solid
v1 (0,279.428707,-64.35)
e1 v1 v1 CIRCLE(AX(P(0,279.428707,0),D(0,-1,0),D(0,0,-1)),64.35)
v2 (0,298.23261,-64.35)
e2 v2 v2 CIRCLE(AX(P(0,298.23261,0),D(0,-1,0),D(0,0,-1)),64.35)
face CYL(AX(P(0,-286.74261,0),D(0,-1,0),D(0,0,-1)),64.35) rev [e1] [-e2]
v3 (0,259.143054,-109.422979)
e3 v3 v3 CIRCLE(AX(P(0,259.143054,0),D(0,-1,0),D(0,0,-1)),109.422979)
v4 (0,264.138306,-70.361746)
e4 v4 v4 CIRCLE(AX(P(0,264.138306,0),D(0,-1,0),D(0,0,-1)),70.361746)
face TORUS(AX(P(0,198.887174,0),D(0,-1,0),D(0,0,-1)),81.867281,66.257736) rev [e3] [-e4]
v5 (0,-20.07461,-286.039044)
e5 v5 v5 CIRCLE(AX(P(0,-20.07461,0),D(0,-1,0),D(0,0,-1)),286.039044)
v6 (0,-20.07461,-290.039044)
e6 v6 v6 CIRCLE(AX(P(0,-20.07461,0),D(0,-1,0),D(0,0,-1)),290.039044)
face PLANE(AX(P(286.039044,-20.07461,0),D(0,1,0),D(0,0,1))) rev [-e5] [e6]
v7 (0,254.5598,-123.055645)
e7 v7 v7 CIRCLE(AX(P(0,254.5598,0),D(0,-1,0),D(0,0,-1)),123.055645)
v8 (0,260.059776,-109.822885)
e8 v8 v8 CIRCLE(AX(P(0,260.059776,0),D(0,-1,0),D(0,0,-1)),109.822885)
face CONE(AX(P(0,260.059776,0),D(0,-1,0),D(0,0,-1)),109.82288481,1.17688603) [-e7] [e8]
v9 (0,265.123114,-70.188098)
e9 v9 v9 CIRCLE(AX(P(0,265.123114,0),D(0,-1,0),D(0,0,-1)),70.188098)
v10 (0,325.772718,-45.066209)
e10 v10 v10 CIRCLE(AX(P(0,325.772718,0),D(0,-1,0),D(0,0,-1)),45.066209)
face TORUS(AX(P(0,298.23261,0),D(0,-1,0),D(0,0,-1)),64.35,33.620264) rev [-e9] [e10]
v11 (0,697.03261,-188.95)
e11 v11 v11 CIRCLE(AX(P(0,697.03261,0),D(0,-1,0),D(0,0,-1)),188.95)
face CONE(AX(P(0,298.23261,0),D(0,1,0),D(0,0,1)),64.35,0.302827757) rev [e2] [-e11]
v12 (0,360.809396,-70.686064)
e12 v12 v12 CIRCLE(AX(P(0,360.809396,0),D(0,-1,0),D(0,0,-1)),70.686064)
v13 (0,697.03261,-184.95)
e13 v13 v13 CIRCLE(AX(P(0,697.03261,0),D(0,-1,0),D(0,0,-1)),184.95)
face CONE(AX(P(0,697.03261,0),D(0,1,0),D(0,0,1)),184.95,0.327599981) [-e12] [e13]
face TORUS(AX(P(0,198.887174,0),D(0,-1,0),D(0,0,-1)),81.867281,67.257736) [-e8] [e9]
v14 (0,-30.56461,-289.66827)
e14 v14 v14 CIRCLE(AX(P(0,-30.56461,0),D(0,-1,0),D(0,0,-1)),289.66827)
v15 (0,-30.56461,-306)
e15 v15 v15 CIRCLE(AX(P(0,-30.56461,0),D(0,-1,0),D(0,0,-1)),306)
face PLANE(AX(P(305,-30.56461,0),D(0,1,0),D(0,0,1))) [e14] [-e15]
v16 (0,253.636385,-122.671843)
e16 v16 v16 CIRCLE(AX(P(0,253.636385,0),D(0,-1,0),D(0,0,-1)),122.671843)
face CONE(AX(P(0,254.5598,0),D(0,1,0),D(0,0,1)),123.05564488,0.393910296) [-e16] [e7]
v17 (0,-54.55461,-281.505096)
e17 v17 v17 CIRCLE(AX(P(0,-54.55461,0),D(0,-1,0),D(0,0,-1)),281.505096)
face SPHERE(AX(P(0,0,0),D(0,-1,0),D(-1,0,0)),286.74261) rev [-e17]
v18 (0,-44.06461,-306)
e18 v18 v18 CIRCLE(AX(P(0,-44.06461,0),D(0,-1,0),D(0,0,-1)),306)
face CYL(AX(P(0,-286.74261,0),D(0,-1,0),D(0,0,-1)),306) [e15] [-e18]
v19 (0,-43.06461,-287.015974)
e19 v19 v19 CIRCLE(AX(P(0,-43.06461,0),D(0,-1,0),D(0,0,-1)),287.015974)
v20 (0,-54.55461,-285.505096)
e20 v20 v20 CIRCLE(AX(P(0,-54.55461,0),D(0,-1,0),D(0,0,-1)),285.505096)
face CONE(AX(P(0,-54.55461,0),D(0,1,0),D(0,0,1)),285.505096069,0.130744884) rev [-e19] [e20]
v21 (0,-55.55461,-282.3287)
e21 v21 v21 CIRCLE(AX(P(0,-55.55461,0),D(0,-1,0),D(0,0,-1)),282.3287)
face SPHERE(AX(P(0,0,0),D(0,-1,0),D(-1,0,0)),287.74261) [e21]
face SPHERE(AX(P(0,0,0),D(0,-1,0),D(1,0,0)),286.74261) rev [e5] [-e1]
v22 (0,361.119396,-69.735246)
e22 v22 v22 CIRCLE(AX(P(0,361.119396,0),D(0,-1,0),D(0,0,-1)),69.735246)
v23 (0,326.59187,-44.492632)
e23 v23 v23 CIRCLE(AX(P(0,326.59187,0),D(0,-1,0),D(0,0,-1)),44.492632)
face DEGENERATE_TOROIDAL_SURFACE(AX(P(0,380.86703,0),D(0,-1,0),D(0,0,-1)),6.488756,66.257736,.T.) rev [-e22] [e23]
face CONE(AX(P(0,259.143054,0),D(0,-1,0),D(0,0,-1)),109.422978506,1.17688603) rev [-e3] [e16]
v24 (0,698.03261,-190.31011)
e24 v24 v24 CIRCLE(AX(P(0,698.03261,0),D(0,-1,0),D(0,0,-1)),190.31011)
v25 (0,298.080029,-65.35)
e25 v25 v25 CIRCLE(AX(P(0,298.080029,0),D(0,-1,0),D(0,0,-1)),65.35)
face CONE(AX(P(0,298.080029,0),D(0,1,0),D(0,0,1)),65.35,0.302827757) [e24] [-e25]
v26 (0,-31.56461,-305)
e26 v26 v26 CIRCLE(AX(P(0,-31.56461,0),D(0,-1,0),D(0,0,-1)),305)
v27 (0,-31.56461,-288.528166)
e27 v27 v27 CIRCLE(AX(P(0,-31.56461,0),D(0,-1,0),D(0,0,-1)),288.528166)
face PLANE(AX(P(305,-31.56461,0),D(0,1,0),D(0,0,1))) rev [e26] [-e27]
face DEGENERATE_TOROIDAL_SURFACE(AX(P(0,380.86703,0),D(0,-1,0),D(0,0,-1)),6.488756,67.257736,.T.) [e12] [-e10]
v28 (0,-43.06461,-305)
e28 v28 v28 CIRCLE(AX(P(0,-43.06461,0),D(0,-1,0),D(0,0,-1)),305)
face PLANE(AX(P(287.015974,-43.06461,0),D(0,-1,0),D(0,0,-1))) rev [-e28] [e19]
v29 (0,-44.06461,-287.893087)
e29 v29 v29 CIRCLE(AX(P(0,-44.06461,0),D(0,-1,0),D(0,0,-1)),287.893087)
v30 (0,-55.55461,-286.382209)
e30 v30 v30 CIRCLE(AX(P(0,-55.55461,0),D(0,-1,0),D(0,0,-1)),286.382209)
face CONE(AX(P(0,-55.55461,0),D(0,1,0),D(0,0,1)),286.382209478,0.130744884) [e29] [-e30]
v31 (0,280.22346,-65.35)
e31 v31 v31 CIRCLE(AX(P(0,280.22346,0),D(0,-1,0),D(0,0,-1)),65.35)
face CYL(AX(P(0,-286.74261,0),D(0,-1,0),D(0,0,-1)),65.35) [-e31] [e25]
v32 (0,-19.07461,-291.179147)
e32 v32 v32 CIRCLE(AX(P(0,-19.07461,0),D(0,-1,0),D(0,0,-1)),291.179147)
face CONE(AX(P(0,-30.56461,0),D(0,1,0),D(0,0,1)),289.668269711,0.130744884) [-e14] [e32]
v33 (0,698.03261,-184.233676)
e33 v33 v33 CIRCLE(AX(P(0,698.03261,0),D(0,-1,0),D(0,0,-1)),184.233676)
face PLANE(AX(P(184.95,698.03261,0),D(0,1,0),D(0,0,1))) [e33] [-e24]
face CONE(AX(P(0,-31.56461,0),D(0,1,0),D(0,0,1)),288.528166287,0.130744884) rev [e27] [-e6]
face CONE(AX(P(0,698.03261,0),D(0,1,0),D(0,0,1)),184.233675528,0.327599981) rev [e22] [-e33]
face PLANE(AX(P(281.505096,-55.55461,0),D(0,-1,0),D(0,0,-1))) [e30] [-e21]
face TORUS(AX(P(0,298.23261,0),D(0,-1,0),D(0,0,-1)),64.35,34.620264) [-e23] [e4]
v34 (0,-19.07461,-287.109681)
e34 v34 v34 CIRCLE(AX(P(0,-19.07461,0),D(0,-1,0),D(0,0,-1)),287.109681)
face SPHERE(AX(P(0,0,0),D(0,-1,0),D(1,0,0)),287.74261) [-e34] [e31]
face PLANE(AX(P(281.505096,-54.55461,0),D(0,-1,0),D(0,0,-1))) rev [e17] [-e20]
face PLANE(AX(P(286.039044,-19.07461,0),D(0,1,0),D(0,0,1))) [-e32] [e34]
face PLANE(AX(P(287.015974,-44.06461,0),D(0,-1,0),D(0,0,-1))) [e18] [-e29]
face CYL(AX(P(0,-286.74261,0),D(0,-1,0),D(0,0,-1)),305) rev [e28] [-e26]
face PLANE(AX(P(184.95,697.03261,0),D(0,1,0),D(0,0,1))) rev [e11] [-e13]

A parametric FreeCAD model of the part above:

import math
import FreeCAD as App
import Part
import Sketcher

V = App.Vector
Q = App.Units.Quantity

doc = App.newDocument("Part")
body = doc.addObject("PartDesign::Body", "Body")

# Sketch on XY plane
sketch1 = doc.addObject("Sketcher::SketchObject", "Sketch")
body.addObject(sketch1)
sketch1.AttachmentSupport = (doc.XY_Plane, [""])
sketch1.MapMode = "FlatFace"
sketch1.addGeometry([
    Part.ArcOfCircle(Part.Circle(V(0, 0, 0), V(0, 0, 1), 286.7), math.radians(-90), math.radians(-11)),  # 0
    Part.LineSegment(V(0, -286.7, 0), V(0, -287.7, 0)),  # 1
    Part.ArcOfCircle(Part.Circle(V(0, 0, 0), V(0, 0, 1), 287.7), math.radians(-90), math.radians(-11)),  # 2
    Part.LineSegment(V(282.3, -55.6, 0), V(286.4, -55.6, 0)),  # 3
    Part.LineSegment(V(286.4, -55.6, 0), V(287.9, -44.1, 0)),  # 4
    Part.LineSegment(V(287.9, -44.1, 0), V(306, -44.1, 0)),  # 5
    Part.LineSegment(V(306, -44.1, 0), V(306, -30.6, 0)),  # 6
    Part.LineSegment(V(306, -30.6, 0), V(289.7, -30.6, 0)),  # 7
    Part.LineSegment(V(289.7, -30.6, 0), V(291.2, -19.1, 0)),  # 8
    Part.LineSegment(V(291.2, -19.1, 0), V(287.1, -19.1, 0)),  # 9
    Part.ArcOfCircle(Part.Circle(V(0, 0, 0), V(0, 0, 1), 287.7), math.radians(-4), math.radians(77)),  # 10
    Part.LineSegment(V(65.3, 280.2, 0), V(65.3, 298.1, 0)),  # 11
    Part.LineSegment(V(65.3, 298.1, 0), V(190.3, 698, 0)),  # 12
    Part.LineSegment(V(190.3, 698, 0), V(184.2, 698, 0)),  # 13
    Part.LineSegment(V(184.2, 698, 0), V(69.7, 361.1, 0)),  # 14
    Part.ArcOfCircle(Part.Circle(V(6.5, 380.9, 0), V(0, 0, 1), 66.3), math.radians(-55), math.radians(-17)),  # 15
    Part.ArcOfCircle(Part.Circle(V(64.3, 298.2, 0), V(0, 0, 1), 34.6), math.radians(125), math.radians(280)),  # 16
    Part.ArcOfCircle(Part.Circle(V(81.9, 198.9, 0), V(0, 0, 1), 66.3), math.radians(65), math.radians(100)),  # 17
    Part.LineSegment(V(109.4, 259.1, 0), V(122.7, 253.6, 0)),  # 18
    Part.LineSegment(V(122.7, 253.6, 0), V(123.1, 254.6, 0)),  # 19
    Part.LineSegment(V(123.1, 254.6, 0), V(109.8, 260.1, 0)),  # 20
    Part.ArcOfCircle(Part.Circle(V(81.9, 198.9, 0), V(0, 0, 1), 67.3), math.radians(65), math.radians(100)),  # 21
    Part.ArcOfCircle(Part.Circle(V(64.3, 298.2, 0), V(0, 0, 1), 33.6), math.radians(125), math.radians(280)),  # 22
    Part.ArcOfCircle(Part.Circle(V(6.5, 380.9, 0), V(0, 0, 1), 67.3), math.radians(-55), math.radians(-17)),  # 23
    Part.LineSegment(V(70.7, 360.8, 0), V(184.9, 697, 0)),  # 24
    Part.LineSegment(V(184.9, 697, 0), V(188.9, 697, 0)),  # 25
    Part.LineSegment(V(188.9, 697, 0), V(64.3, 298.2, 0)),  # 26
    Part.LineSegment(V(64.3, 298.2, 0), V(64.3, 279.4, 0)),  # 27
    Part.ArcOfCircle(Part.Circle(V(0, 0, 0), V(0, 0, 1), 286.7), math.radians(-4), math.radians(77)),  # 28
    Part.LineSegment(V(286, -20.1, 0), V(290, -20.1, 0)),  # 29
    Part.LineSegment(V(290, -20.1, 0), V(288.5, -31.6, 0)),  # 30
    Part.LineSegment(V(288.5, -31.6, 0), V(305, -31.6, 0)),  # 31
    Part.LineSegment(V(305, -31.6, 0), V(305, -43.1, 0)),  # 32
    Part.LineSegment(V(305, -43.1, 0), V(287, -43.1, 0)),  # 33
    Part.LineSegment(V(287, -43.1, 0), V(285.5, -54.6, 0)),  # 34
    Part.LineSegment(V(285.5, -54.6, 0), V(281.5, -54.6, 0)),  # 35
], False)
sketch1.addConstraint([
    Sketcher.Constraint("Coincident", 0, 1, 1, 1),
    Sketcher.Constraint("Coincident", 1, 2, 2, 1),
    Sketcher.Constraint("Coincident", 2, 2, 3, 1),
    Sketcher.Constraint("Coincident", 3, 2, 4, 1),
    Sketcher.Constraint("Coincident", 4, 2, 5, 1),
    Sketcher.Constraint("Coincident", 5, 2, 6, 1),
    Sketcher.Constraint("Coincident", 6, 2, 7, 1),
    Sketcher.Constraint("Coincident", 7, 2, 8, 1),
    Sketcher.Constraint("Coincident", 8, 2, 9, 1),
    Sketcher.Constraint("Coincident", 9, 2, 10, 1),
    Sketcher.Constraint("Coincident", 10, 2, 11, 1),
    Sketcher.Constraint("Coincident", 11, 2, 12, 1),
    Sketcher.Constraint("Coincident", 12, 2, 13, 1),
    Sketcher.Constraint("Coincident", 13, 2, 14, 1),
    Sketcher.Constraint("Coincident", 14, 2, 15, 2),
    Sketcher.Constraint("Tangent", 15, 1, 16, 1),
    Sketcher.Constraint("Tangent", 16, 2, 17, 2),
    Sketcher.Constraint("Coincident", 17, 1, 18, 1),
    Sketcher.Constraint("Coincident", 18, 2, 19, 1),
    Sketcher.Constraint("Coincident", 19, 2, 20, 1),
    Sketcher.Constraint("Coincident", 20, 2, 21, 1),
    Sketcher.Constraint("Tangent", 21, 2, 22, 2),
    Sketcher.Constraint("Tangent", 22, 1, 23, 1),
    Sketcher.Constraint("Coincident", 23, 2, 24, 1),
    Sketcher.Constraint("Coincident", 24, 2, 25, 1),
    Sketcher.Constraint("Coincident", 25, 2, 26, 1),
    Sketcher.Constraint("Coincident", 26, 2, 27, 1),
    Sketcher.Constraint("Coincident", 27, 2, 28, 2),
    Sketcher.Constraint("Coincident", 28, 1, 29, 1),
    Sketcher.Constraint("Coincident", 29, 2, 30, 1),
    Sketcher.Constraint("Coincident", 30, 2, 31, 1),
    Sketcher.Constraint("Coincident", 31, 2, 32, 1),
    Sketcher.Constraint("Coincident", 32, 2, 33, 1),
    Sketcher.Constraint("Coincident", 33, 2, 34, 1),
    Sketcher.Constraint("Coincident", 34, 2, 35, 1),
    Sketcher.Constraint("Coincident", 35, 2, 0, 2),
    Sketcher.Constraint("Vertical", 1),
    Sketcher.Constraint("Horizontal", 3),
    Sketcher.Constraint("Horizontal", 5),
    Sketcher.Constraint("Vertical", 6),
    Sketcher.Constraint("Horizontal", 7),
    Sketcher.Constraint("Horizontal", 9),
    Sketcher.Constraint("Vertical", 11),
    Sketcher.Constraint("Horizontal", 13),
    Sketcher.Constraint("Horizontal", 25),
    Sketcher.Constraint("Vertical", 27),
    Sketcher.Constraint("Horizontal", 29),
    Sketcher.Constraint("Horizontal", 31),
    Sketcher.Constraint("Vertical", 32),
    Sketcher.Constraint("Horizontal", 33),
    Sketcher.Constraint("Horizontal", 35),
    Sketcher.Constraint("Coincident", 0, 3, -1, 1),
    Sketcher.Constraint("Coincident", 2, 3, -1, 1),
    Sketcher.Constraint("Coincident", 10, 3, -1, 1),
    Sketcher.Constraint("Coincident", 28, 3, -1, 1),
    Sketcher.Constraint("Coincident", 21, 3, 17, 3),
    Sketcher.Constraint("Coincident", 22, 3, 16, 3),
    Sketcher.Constraint("Coincident", 23, 3, 15, 3),
    Sketcher.Constraint("Coincident", 26, 2, 16, 3),
    Sketcher.Constraint("Equal", 2, 10),
    Sketcher.Constraint("Equal", 15, 17),
    Sketcher.Constraint("Equal", 0, 28),
    Sketcher.Constraint("PointOnObject", 0, 1, -2),
    Sketcher.Constraint("Parallel", 4, 8),
    Sketcher.Constraint("Perpendicular", 18, 19),
    Sketcher.Constraint("Perpendicular", 19, 20),
    Sketcher.Constraint("Parallel", 14, 24),
    Sketcher.Constraint("Parallel", 12, 26),
    Sketcher.Constraint("Parallel", 8, 30),
    Sketcher.Constraint("Parallel", 30, 34),
    Sketcher.Constraint("Equal", 25, 29),
    Sketcher.Constraint("Equal", 29, 35),
    Sketcher.Constraint("Equal", 4, 8),
    Sketcher.Constraint("Equal", 8, 30),
    Sketcher.Constraint("Equal", 30, 34),
    Sketcher.Constraint("DistanceX", 25, 1, 25, 2, Q("4 mm")),
    Sketcher.Constraint("DistanceY", 1, 2, 1, 1, Q("1 mm")),
    Sketcher.Constraint("Distance", 19, Q("1 mm")),
    Sketcher.Constraint("DistanceY", 6, 1, 6, 2, Q("13.5 mm")),
    Sketcher.Constraint("DistanceY", 32, 2, 32, 1, Q("11.5 mm")),
    Sketcher.Constraint("DistanceX", -1, 1, 5, 2, Q("306 mm")),
    Sketcher.Constraint("DistanceX", -1, 1, 31, 2, Q("305 mm")),
    Sketcher.Constraint("DistanceX", 16, 3, 11, 2, Q("1 mm")),
    Sketcher.Constraint("DistanceY", 24, 2, 13, 2, Q("1 mm")),
    Sketcher.Constraint("DistanceY", 29, 2, 8, 2, Q("1 mm")),
    Sketcher.Constraint("DistanceY", 16, 3, 12, 2, Q("399.8 mm")),
    Sketcher.Constraint("DistanceX", -1, 1, 16, 3, Q("64.35 mm")),
    Sketcher.Constraint("DistanceX", -1, 1, 24, 2, Q("184.95 mm")),
    Sketcher.Constraint("Radius", 0, Q("286.74261 mm")),
    Sketcher.Constraint("DistanceY", 3, 2, 4, 2, Q("11.49 mm")),
    Sketcher.Constraint("DistanceY", 23, 2, 14, 2, Q("0.31 mm")),
    Sketcher.Constraint("Radius", 15, Q("66.257736 mm")),
    Sketcher.Constraint("Radius", 16, Q("34.620264 mm")),
    Sketcher.Constraint("Radius", 21, Q("67.257736 mm")),
    Sketcher.Constraint("DistanceX", 3, 1, 3, 2, Q("4.053509 mm")),
    Sketcher.Constraint("DistanceX", 7, 2, 7, 1, Q("16.33173 mm")),
    Sketcher.Constraint("DistanceY", 11, 1, 11, 2, Q("17.856569 mm")),
    Sketcher.Constraint("DistanceY", -1, 1, 19, 2, Q("254.5598 mm")),
    Sketcher.Constraint("DistanceX", 16, 2, 19, 2, Q("52.693899 mm")),
    Sketcher.Constraint("DistanceY", 16, 2, 27, 2, Q("15.290401 mm")),
    Sketcher.Constraint("Distance", 4, Q("11.588911 mm")),
    Sketcher.Constraint("Distance", 14, Q("355.83761 mm")),
    Sketcher.Constraint("DistanceX", 5, 1, 5, 2, Q("18.106913 mm")),
    Sketcher.Constraint("DistanceX", 13, 2, 13, 1, Q("6.076434 mm")),
    Sketcher.Constraint("DistanceY", -1, 1, 15, 3, Q("380.86703 mm")),
    Sketcher.Constraint("DistanceX", -1, 1, 17, 1, Q("109.422979 mm")),
])
revolution = doc.addObject("PartDesign::Revolution", "Revolution")
body.addObject(revolution)
revolution.Profile = sketch1
revolution.ReferenceAxis = (sketch1, ["V_Axis"])
revolution.Angle = 360

doc.recompute()
